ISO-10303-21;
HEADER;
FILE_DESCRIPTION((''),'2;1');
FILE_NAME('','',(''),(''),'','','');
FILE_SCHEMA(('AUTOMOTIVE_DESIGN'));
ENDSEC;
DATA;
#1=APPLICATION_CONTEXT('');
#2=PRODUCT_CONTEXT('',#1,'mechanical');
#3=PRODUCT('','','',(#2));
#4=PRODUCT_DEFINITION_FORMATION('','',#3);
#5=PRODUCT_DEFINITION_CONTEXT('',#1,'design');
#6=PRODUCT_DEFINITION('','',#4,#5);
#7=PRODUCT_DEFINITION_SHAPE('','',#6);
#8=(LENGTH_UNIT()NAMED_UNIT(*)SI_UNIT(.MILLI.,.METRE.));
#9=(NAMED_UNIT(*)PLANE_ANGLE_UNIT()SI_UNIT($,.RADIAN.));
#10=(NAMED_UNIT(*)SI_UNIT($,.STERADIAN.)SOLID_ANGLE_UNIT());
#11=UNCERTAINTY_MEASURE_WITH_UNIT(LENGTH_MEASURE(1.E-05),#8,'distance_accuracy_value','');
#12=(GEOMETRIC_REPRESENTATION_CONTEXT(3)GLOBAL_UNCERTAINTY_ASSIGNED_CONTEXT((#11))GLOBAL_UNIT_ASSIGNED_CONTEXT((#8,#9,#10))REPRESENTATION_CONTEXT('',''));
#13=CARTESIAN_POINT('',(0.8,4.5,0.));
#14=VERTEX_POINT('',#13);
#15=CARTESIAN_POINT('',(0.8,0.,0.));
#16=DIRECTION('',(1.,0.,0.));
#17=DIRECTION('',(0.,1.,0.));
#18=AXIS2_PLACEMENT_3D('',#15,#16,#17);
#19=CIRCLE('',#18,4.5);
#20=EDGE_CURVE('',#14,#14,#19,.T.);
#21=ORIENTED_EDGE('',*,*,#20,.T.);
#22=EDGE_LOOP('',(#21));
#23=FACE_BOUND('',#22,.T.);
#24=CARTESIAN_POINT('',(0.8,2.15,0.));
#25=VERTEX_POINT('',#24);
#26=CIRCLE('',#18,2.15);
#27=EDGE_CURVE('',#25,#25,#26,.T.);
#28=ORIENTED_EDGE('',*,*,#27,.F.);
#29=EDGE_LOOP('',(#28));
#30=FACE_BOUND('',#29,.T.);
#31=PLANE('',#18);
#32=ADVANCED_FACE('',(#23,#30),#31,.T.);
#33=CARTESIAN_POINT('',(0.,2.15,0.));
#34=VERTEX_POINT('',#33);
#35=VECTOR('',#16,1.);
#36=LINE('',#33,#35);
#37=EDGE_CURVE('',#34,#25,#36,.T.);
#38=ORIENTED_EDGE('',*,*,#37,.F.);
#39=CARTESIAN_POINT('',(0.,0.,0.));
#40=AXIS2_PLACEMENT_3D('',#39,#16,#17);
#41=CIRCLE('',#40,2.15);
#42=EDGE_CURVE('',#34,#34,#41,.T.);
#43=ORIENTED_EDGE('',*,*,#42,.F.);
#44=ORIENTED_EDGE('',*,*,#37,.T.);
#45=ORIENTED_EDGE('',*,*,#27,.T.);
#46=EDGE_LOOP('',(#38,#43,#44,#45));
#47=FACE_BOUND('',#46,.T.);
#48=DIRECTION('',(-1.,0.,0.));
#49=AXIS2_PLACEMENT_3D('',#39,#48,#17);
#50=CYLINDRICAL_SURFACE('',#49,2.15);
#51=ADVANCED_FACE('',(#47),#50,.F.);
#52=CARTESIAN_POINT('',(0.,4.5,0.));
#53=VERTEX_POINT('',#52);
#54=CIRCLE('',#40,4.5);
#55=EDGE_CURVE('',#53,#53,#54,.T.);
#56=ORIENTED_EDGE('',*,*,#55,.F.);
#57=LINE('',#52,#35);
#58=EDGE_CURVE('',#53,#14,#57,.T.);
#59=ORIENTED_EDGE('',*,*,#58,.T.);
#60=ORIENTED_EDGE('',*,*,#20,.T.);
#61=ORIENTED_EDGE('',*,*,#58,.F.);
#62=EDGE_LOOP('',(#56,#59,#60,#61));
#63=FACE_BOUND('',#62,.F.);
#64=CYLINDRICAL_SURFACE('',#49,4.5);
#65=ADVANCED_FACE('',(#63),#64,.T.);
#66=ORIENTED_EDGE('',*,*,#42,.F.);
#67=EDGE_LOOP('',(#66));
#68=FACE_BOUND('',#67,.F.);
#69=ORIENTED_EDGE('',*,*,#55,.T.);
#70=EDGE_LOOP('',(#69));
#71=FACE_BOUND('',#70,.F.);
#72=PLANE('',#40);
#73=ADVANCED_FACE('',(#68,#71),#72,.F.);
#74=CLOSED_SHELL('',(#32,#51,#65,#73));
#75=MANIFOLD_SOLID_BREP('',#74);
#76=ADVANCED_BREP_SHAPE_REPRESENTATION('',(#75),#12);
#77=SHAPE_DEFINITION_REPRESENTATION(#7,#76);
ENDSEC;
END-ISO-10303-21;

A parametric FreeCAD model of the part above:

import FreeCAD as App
import Part
import Sketcher

V = App.Vector

doc = App.newDocument("Part")
params = doc.addObject("Spreadsheet::Sheet", "Params")
for row, (alias, value) in enumerate([
    ("sketch1_diameter", "9 mm"),
    ("sketch1_diameter2", "4.3 mm"),
    ("pad1_length", "0.8 mm"),
], start=1):
    params.set(f"A{row}", alias)
    params.set(f"B{row}", "=" + value)
    params.setAlias(f"B{row}", alias)

body = doc.addObject("PartDesign::Body", "Body")

sketch1 = body.newObject("Sketcher::SketchObject", "Sketch")
sketch1.AttachmentSupport = (doc.getObject("YZ_Plane"), [""])
sketch1.MapMode = "FlatFace"
sketch1.addGeometry([
    Part.Circle(V(0, 0, 0), V(0, 0, 1), 4.5),
    Part.Circle(V(0, 0, 0), V(0, 0, 1), 2.1),
], False)
sketch1.addConstraint([
    Sketcher.Constraint("Coincident", 0, 3, -1, 1),
    Sketcher.Constraint("Coincident", 1, 3, -1, 1),
    Sketcher.Constraint("Diameter", 0, 9.0),
    Sketcher.Constraint("Diameter", 1, 4.3),
])
sketch1.setExpression("Constraints[2]", "Params.sketch1_diameter")
sketch1.setExpression("Constraints[3]", "Params.sketch1_diameter2")
pad1 = body.newObject("PartDesign::Pad", "Pad")
pad1.Profile = sketch1
pad1.setExpression("Length", "Params.pad1_length")

doc.recompute()
